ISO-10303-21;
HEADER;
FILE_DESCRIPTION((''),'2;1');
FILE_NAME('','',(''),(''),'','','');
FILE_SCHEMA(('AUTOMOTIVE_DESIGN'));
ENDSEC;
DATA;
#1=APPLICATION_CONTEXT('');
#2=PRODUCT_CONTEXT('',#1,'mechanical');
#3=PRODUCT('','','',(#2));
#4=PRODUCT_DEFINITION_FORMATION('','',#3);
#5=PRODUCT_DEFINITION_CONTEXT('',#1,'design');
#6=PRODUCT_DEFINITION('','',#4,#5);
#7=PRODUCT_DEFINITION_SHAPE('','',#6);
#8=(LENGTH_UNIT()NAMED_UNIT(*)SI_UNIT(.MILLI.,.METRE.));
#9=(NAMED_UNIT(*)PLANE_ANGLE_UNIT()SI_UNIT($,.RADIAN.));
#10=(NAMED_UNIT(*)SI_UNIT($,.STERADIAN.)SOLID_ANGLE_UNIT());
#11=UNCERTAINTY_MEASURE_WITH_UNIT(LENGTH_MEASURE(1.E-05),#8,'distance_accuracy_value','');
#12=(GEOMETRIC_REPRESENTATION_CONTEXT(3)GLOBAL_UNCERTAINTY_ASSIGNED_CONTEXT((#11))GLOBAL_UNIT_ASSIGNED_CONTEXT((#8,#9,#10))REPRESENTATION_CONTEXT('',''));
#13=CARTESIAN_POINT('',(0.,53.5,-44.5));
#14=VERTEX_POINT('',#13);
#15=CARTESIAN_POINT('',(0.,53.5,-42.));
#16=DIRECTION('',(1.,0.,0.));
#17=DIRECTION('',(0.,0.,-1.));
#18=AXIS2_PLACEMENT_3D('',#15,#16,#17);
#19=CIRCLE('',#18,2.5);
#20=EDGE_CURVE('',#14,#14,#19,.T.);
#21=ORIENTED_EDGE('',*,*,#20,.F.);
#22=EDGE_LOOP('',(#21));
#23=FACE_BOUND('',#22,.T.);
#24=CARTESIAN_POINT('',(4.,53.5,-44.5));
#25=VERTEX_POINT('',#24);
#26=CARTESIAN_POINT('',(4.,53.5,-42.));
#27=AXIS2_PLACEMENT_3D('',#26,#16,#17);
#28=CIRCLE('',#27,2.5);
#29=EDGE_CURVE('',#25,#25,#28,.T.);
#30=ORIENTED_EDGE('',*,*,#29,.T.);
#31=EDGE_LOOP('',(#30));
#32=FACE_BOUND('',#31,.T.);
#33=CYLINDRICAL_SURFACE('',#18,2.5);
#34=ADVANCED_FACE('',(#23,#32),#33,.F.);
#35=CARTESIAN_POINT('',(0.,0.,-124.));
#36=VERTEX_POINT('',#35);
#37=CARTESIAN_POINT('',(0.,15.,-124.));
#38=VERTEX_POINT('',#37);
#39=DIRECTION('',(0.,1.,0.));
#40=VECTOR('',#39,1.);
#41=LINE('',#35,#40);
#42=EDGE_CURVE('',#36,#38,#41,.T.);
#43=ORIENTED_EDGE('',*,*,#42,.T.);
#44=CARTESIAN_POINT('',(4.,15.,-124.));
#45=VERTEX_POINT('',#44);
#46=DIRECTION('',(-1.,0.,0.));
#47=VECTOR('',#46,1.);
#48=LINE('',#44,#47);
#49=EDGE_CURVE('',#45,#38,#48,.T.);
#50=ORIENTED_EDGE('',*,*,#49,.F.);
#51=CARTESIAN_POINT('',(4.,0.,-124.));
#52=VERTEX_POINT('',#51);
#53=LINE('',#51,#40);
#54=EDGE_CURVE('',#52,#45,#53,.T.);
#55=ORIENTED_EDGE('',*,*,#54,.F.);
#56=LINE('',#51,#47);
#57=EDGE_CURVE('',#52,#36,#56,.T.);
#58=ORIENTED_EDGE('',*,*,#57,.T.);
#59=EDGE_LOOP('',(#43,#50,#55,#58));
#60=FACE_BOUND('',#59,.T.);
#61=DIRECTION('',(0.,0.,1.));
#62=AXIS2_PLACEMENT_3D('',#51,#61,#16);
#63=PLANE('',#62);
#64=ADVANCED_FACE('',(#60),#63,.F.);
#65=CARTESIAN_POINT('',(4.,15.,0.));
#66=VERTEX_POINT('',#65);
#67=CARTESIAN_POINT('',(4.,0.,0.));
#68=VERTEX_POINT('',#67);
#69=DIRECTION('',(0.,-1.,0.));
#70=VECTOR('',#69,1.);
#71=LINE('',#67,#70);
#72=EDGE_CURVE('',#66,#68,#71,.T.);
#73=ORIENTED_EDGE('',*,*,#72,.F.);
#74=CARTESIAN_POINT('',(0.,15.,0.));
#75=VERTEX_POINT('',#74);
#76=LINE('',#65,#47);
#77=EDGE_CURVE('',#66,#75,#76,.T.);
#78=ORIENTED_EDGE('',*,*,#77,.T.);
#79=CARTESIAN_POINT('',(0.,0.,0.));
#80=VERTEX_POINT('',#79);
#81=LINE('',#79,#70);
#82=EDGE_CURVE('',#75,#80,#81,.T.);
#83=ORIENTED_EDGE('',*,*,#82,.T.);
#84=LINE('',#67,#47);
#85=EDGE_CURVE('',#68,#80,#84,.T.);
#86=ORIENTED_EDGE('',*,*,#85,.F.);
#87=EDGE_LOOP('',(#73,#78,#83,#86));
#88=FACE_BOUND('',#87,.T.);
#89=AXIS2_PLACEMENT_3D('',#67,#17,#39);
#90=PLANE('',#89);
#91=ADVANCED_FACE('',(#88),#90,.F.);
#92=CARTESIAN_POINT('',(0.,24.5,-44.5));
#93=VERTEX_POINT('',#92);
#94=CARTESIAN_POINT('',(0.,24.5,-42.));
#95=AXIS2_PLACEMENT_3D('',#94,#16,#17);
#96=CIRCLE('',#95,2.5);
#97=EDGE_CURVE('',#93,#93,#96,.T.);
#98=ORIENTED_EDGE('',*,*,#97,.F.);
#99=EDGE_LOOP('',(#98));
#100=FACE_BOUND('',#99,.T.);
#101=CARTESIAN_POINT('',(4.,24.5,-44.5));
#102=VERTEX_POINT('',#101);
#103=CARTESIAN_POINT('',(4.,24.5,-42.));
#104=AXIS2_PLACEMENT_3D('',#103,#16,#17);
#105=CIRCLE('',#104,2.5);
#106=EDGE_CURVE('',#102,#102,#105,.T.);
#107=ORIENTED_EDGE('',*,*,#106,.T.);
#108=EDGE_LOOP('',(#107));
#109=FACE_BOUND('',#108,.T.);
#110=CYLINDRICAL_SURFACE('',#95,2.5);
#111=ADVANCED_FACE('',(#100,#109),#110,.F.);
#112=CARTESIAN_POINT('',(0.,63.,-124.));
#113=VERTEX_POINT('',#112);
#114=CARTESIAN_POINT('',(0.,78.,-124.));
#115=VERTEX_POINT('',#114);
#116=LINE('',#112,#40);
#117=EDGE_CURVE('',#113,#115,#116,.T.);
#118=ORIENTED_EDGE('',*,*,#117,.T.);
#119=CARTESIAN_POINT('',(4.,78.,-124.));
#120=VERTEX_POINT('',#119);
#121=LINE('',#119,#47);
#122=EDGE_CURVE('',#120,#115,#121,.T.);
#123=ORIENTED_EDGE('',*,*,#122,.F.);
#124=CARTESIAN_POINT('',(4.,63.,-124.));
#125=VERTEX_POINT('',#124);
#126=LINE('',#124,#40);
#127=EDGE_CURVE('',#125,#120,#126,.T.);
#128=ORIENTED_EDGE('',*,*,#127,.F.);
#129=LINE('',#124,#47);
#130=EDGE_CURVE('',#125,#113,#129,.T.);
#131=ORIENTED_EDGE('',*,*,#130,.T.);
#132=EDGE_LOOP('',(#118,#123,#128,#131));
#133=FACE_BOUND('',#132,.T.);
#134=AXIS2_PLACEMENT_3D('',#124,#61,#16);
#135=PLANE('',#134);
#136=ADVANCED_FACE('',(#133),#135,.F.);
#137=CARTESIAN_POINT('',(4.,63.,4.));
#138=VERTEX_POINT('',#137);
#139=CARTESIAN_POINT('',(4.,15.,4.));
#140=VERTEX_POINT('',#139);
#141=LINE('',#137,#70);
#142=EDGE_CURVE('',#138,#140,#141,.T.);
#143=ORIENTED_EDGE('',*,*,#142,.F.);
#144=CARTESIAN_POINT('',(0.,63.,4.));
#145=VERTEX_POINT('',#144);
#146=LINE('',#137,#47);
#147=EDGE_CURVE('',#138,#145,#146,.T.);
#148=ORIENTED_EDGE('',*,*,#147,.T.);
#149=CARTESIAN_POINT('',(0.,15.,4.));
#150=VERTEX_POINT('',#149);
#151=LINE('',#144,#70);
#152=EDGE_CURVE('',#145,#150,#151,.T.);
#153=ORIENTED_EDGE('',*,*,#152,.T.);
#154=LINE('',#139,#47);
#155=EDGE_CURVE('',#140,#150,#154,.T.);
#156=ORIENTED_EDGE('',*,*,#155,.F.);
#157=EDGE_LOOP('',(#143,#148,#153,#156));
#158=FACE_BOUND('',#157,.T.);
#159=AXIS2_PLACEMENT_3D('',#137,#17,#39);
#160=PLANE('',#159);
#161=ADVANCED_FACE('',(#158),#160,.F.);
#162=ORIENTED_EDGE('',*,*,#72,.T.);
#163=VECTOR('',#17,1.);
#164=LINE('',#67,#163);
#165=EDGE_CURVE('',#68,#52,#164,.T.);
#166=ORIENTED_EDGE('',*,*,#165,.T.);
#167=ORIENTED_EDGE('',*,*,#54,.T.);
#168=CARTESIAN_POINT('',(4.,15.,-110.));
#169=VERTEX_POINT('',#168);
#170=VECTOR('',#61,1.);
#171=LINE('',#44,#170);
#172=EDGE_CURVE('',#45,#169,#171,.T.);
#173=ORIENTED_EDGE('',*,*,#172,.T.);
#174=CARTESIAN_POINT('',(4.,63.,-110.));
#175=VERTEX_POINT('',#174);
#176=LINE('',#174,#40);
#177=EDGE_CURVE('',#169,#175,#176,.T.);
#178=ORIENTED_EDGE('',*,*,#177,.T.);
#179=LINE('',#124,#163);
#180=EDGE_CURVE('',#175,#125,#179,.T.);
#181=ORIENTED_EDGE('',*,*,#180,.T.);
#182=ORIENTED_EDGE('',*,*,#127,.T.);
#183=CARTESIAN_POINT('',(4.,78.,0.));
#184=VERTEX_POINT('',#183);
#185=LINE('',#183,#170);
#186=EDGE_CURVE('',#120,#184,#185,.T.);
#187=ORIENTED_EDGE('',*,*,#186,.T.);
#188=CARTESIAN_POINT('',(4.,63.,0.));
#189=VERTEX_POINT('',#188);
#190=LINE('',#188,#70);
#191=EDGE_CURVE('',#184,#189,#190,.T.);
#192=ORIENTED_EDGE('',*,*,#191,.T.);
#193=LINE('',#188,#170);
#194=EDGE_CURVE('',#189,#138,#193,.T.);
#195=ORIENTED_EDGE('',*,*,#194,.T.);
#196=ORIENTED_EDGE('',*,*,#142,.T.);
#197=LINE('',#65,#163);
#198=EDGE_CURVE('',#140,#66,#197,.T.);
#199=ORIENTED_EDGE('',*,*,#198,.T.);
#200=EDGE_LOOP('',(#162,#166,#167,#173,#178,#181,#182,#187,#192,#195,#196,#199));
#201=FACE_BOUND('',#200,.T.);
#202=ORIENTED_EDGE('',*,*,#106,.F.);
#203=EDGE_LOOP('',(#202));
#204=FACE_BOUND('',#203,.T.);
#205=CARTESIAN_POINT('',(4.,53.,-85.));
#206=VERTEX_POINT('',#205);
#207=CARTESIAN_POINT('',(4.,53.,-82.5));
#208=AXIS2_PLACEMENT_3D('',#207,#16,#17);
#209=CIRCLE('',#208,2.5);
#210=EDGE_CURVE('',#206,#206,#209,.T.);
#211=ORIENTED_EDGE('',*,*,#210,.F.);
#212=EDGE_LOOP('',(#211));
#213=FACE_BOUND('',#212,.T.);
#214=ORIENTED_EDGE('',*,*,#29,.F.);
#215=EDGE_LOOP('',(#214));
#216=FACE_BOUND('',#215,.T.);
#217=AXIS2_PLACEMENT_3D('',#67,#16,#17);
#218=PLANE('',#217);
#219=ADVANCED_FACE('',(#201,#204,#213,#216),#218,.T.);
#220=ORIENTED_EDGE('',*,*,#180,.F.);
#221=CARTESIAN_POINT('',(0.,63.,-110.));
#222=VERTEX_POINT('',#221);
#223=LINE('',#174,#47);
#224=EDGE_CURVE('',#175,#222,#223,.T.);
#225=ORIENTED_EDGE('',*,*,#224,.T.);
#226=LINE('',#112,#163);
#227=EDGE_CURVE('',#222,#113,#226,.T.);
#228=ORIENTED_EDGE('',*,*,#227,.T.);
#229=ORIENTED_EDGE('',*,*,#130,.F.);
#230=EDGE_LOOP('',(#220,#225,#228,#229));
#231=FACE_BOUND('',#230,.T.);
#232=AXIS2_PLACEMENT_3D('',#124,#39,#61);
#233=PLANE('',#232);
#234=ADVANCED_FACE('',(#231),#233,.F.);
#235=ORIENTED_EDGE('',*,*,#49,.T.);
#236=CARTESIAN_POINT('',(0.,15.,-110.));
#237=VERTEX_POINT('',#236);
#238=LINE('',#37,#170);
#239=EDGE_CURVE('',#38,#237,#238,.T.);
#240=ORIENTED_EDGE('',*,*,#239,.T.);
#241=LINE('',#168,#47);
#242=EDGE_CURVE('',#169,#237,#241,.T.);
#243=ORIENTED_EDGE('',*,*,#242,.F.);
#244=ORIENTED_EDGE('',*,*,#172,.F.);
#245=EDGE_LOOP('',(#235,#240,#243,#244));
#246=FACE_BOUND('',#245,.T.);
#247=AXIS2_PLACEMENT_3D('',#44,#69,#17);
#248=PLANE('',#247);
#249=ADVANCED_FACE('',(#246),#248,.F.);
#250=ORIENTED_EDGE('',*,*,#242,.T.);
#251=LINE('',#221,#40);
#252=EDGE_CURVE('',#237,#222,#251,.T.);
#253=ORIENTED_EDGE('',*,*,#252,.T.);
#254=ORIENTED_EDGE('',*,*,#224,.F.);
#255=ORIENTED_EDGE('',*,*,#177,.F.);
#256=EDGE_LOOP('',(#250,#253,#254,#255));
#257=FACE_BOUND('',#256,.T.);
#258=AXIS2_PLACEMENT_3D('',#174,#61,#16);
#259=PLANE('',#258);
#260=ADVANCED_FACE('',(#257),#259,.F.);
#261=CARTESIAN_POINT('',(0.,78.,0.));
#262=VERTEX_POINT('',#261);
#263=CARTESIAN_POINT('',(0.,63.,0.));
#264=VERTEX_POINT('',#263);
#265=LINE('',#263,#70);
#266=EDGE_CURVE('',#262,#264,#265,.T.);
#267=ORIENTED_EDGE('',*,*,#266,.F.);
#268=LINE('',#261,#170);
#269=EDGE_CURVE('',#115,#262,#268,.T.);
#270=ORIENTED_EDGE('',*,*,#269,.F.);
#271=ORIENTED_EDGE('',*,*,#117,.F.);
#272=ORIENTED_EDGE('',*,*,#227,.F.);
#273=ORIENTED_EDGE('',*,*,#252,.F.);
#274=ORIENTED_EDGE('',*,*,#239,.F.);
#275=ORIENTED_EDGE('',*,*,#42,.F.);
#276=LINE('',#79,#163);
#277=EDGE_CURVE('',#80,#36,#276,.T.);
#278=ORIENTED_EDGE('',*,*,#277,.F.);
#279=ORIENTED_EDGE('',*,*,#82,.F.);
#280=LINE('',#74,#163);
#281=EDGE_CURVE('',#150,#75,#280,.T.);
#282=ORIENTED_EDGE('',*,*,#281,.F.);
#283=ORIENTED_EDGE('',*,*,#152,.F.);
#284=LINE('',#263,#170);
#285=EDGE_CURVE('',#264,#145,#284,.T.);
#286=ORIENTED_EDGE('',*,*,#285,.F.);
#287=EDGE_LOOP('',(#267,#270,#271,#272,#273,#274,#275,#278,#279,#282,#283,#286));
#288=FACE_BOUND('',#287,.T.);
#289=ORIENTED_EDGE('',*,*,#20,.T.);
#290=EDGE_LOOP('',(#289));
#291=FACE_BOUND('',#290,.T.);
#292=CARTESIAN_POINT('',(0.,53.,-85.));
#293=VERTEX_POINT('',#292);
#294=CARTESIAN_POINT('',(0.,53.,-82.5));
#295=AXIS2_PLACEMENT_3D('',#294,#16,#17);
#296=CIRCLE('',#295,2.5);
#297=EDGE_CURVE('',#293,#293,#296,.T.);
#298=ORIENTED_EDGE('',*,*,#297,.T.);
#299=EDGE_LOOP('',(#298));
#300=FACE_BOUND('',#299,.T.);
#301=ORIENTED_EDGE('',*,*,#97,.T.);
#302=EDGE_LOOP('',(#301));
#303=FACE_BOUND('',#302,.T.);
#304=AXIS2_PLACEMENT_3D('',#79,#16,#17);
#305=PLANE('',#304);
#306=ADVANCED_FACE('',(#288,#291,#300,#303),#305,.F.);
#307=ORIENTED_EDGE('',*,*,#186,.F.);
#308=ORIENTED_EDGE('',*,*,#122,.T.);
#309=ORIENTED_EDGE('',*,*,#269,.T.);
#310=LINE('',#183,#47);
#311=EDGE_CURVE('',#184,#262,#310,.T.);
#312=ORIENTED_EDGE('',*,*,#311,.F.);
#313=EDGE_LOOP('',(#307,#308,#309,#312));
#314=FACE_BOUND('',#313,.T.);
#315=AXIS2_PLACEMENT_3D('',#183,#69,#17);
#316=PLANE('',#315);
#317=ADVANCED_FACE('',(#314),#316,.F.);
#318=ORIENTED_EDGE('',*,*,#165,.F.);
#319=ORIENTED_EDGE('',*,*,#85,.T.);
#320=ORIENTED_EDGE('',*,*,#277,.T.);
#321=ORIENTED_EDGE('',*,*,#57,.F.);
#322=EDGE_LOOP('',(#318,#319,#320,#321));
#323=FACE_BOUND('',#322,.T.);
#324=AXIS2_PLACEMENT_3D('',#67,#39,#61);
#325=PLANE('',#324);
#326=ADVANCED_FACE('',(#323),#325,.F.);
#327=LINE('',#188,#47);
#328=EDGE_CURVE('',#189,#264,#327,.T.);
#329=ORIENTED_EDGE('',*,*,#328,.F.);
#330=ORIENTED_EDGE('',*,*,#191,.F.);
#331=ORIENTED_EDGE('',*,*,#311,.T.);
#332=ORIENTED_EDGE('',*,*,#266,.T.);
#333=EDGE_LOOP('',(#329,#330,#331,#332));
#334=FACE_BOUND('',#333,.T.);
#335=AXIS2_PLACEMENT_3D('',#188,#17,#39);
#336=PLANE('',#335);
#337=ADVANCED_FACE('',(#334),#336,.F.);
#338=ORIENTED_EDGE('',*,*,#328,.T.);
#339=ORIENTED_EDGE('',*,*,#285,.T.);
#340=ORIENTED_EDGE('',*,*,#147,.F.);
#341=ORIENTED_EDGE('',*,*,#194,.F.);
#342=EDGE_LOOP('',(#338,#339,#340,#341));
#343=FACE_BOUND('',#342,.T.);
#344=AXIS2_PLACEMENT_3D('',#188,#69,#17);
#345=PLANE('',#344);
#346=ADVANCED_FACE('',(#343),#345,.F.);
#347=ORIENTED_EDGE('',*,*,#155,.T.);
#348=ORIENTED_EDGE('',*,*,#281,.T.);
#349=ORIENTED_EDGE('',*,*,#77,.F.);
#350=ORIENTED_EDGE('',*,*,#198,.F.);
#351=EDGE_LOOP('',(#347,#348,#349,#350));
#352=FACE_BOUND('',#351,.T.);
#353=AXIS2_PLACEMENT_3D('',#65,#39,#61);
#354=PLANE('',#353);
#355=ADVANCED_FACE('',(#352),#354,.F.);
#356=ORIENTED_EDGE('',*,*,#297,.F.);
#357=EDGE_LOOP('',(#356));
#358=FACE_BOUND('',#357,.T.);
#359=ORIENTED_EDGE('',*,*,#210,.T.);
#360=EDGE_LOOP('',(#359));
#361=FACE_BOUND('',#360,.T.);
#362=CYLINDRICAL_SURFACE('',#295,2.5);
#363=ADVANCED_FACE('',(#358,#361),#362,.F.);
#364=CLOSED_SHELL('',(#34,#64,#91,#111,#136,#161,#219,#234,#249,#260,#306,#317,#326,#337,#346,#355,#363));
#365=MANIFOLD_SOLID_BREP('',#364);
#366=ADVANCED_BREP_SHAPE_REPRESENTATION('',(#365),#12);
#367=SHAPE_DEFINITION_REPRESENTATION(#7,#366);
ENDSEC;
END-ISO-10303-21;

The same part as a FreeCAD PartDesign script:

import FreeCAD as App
import Part
import Sketcher
from FreeCAD import Vector


def add_polygon(sketch, points):
    """Adds a closed chain of lines whose ends are joined by coincident constraints."""
    first, n = sketch.GeometryCount, len(points)
    for a, b in zip(points, points[1:] + points[:1]):
        sketch.addGeometry(Part.LineSegment(App.Vector(*a, 0), App.Vector(*b, 0)), False)
    for i in range(n):
        sketch.addConstraint(Sketcher.Constraint("Coincident", first + i, 2, first + (i + 1) % n, 1))

doc = App.newDocument("Part")
body = doc.addObject("PartDesign::Body", "Body")

# Sketch on YZ plane
sketch1 = body.newObject("Sketcher::SketchObject", "Sketch")
sketch1.AttachmentSupport = (doc.getObject("YZ_Plane"), [""])
sketch1.MapMode = "FlatFace"
add_polygon(sketch1, [(78, 0), (63, 0), (63, 4), (15, 4), (15, 0), (0, 0), (0, -124), (15, -124), (15, -110), (63, -110), (63, -124), (78, -124)])  # lines 0-11
sketch1.addConstraint([
    Sketcher.Constraint("Horizontal", 0),
    Sketcher.Constraint("Vertical", 1),
    Sketcher.Constraint("Horizontal", 2),
    Sketcher.Constraint("Vertical", 3),
    Sketcher.Constraint("Horizontal", 4),
    Sketcher.Constraint("Vertical", 5),
    Sketcher.Constraint("Horizontal", 6),
    Sketcher.Constraint("Vertical", 7),
    Sketcher.Constraint("Horizontal", 8),
    Sketcher.Constraint("Vertical", 9),
    Sketcher.Constraint("Horizontal", 10),
    Sketcher.Constraint("Vertical", 11),
    Sketcher.Constraint("Coincident", 4, 2, -1, 1),
    Sketcher.Constraint("PointOnObject", 0, 2, -1),
    Sketcher.Constraint("Horizontal", 6, 2, 9, 2),
    Sketcher.Constraint("Vertical", 3, 2, 6, 2),
    Sketcher.Constraint("Vertical", 1, 2, 8, 2),
    Sketcher.Constraint("Equal", 0, 4),
    Sketcher.Constraint("DistanceX", 0, 2, 0, 1, 15.0),
    Sketcher.Constraint("DistanceX", 2, 2, 2, 1, 48.0),
    Sketcher.Constraint("DistanceY", 1, 1, 1, 2, 4.0),
    Sketcher.Constraint("DistanceY", 5, 2, 5, 1, 124.0),
    Sketcher.Constraint("DistanceY", 7, 1, 7, 2, 14.0),
])
pad1 = body.newObject("PartDesign::Pad", "Pad")
pad1.Profile = sketch1
pad1.Length = 4

# Sketch on YZ plane
sketch2 = body.newObject("Sketcher::SketchObject", "Sketch001")
sketch2.AttachmentSupport = (doc.getObject("YZ_Plane"), [""])
sketch2.MapMode = "FlatFace"
sketch2.AttachmentOffset = App.Placement(Vector(0, 0, 4), App.Rotation())
sketch2.addGeometry([
    Part.Circle(Vector(24.5, -42, 0), Vector(0, 0, 1), 2.5),
    Part.Circle(Vector(53.5, -42, 0), Vector(0, 0, 1), 2.5),
    Part.Circle(Vector(53, -82.5, 0), Vector(0, 0, 1), 2.5),
], False)
sketch2.addConstraint([
    Sketcher.Constraint("Equal", 0, 1),
    Sketcher.Constraint("Equal", 1, 2),
    Sketcher.Constraint("Horizontal", 0, 3, 1, 3),
    Sketcher.Constraint("Diameter", 0, 5.0),
    Sketcher.Constraint("DistanceY", 0, 3, -1, 1, 42.0),
    Sketcher.Constraint("DistanceX", -1, 1, 2, 3, 53.0),
    Sketcher.Constraint("DistanceX", 0, 3, 1, 3, 29.0),
    Sketcher.Constraint("DistanceX", -1, 1, 0, 3, 24.5),
    Sketcher.Constraint("DistanceY", 2, 3, -1, 1, 82.5),
])
pocket1 = body.newObject("PartDesign::Pocket", "Pocket")
pocket1.Profile = sketch2
pocket1.Type = "ThroughAll"

doc.recompute()
